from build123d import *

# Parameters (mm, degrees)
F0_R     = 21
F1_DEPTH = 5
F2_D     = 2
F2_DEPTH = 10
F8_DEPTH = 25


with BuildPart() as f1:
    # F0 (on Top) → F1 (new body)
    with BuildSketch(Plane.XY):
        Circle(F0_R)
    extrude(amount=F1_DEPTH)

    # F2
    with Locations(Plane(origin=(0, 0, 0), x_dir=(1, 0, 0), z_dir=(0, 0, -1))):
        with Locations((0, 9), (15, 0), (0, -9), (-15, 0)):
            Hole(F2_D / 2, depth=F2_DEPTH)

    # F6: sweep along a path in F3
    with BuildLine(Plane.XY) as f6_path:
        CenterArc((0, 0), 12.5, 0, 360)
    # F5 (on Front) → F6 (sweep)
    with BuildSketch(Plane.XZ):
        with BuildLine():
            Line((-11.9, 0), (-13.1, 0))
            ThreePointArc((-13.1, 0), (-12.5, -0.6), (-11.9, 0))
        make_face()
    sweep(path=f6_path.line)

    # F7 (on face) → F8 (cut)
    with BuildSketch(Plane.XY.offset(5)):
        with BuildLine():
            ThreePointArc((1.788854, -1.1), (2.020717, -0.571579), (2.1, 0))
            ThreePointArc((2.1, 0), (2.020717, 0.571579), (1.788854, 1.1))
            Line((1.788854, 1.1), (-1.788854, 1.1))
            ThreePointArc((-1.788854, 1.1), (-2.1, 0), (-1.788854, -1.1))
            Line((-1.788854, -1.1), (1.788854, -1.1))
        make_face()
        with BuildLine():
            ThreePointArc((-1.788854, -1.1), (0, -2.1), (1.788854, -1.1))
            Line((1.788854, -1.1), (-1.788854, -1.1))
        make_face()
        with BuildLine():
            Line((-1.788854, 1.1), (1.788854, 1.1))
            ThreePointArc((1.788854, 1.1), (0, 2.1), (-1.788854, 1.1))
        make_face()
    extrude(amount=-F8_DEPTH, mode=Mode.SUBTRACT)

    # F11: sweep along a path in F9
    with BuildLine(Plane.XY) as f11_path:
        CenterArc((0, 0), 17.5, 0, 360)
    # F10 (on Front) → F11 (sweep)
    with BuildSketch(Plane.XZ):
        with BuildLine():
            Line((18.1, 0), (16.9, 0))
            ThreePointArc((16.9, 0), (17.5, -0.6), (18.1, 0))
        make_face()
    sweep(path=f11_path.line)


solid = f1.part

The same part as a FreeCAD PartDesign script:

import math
import FreeCAD as App
import Part
import Sketcher

V = App.Vector
Q = App.Units.Quantity

doc = App.newDocument("Part")
body = doc.addObject("PartDesign::Body", "Body")

# Sketch on XY plane
sketch1 = body.newObject("Sketcher::SketchObject", "Sketch")
sketch1.AttachmentSupport = (doc.getObject("XY_Plane"), [""])
sketch1.MapMode = "FlatFace"
sketch1.addGeometry(Part.Circle(V(0, 0, 0), V(0, 0, 1), 21), False)
sketch1.addConstraint([
    Sketcher.Constraint("Coincident", 0, 3, -1, 1),
    Sketcher.Constraint("Diameter", 0, Q("42 mm")),
])
pad1 = body.newObject("PartDesign::Pad", "Pad")
pad1.Profile = sketch1
pad1.Length = 5

# Sketch on XY plane
sketch2 = body.newObject("Sketcher::SketchObject", "Sketch001")
sketch2.AttachmentSupport = (doc.getObject("XY_Plane"), [""])
sketch2.MapMode = "FlatFace"
sketch2.addGeometry([
    Part.Circle(V(0, -9, 0), V(0, 0, 1), 1),
    Part.Circle(V(15, 0, 0), V(0, 0, 1), 1),
    Part.Circle(V(0, 9, 0), V(0, 0, 1), 1),
    Part.Circle(V(-15, 0, 0), V(0, 0, 1), 1),
], False)
sketch2.addConstraint([
    Sketcher.Constraint("Equal", 0, 1),
    Sketcher.Constraint("Equal", 1, 2),
    Sketcher.Constraint("Equal", 2, 3),
    Sketcher.Constraint("Symmetric", 0, 3, 2, 3, -1, 1),
    Sketcher.Constraint("Symmetric", 1, 3, 3, 3, -1, 1),
    Sketcher.Constraint("PointOnObject", 0, 3, -2),
    Sketcher.Constraint("PointOnObject", 1, 3, -1),
    Sketcher.Constraint("Diameter", 0, Q("2 mm")),
    Sketcher.Constraint("DistanceY", 0, 3, -1, 1, Q("9 mm")),
    Sketcher.Constraint("DistanceX", -1, 1, 1, 3, Q("15 mm")),
])
doc.recompute()
hole = body.newObject("PartDesign::Hole", "Hole")
hole.Profile = sketch2
hole.ThreadType = "None"
hole.Diameter = 2
hole.DepthType = "Dimension"
hole.Depth = 10
hole.DrillPoint = "Flat"
hole.Reversed = True

# Sketch on XZ plane
sketch3 = body.newObject("Sketcher::SketchObject", "Sketch002")
sketch3.AttachmentSupport = (doc.getObject("XZ_Plane"), [""])
sketch3.MapMode = "FlatFace"
sketch3.addGeometry([
    Part.LineSegment(V(-11.9, 0, 0), V(-13.1, 0, 0)),
    Part.ArcOfCircle(Part.Circle(V(-12.5, 0, 0), V(0, 0, 1), 0.6), math.radians(180), math.radians(360)),
], False)
sketch3.addConstraint([
    Sketcher.Constraint("Coincident", 0, 1, 1, 2),
    Sketcher.Constraint("Coincident", 1, 1, 0, 2),
    Sketcher.Constraint("Horizontal", 0),
    Sketcher.Constraint("PointOnObject", 1, 3, -1),
    Sketcher.Constraint("PointOnObject", 0, 1, -1),
    Sketcher.Constraint("Radius", 1, Q("0.6 mm")),
    Sketcher.Constraint("DistanceX", 1, 3, -1, 1, Q("12.5 mm")),
])

# Sketch on XY plane
sketch4 = body.newObject("Sketcher::SketchObject", "Sketch003")
sketch4.AttachmentSupport = (doc.getObject("XY_Plane"), [""])
sketch4.MapMode = "FlatFace"
sketch4.addGeometry(Part.Circle(V(0, 0, 0), V(0, 0, 1), 12), False)
sketch4.addConstraint([
    Sketcher.Constraint("Coincident", 0, 3, -1, 1),
    Sketcher.Constraint("Diameter", 0, Q("25 mm")),
])
doc.recompute()

additivepipe = body.newObject("PartDesign::AdditivePipe", "AdditivePipe")
additivepipe.Profile = sketch3
additivepipe.Spine = (sketch4, ["Edge1"])

# Sketch on XY plane
sketch5 = body.newObject("Sketcher::SketchObject", "Sketch004")
sketch5.AttachmentSupport = (doc.getObject("XY_Plane"), [""])
sketch5.MapMode = "FlatFace"
sketch5.AttachmentOffset = App.Placement(V(0, 0, 5), App.Rotation())
sketch5.addGeometry([
    Part.ArcOfCircle(Part.Circle(V(0, 0, 0), V(0, 0, 1), 2.1), math.radians(-32), math.radians(0)),  # 0
    Part.ArcOfCircle(Part.Circle(V(0, 0, 0), V(0, 0, 1), 2.1), math.radians(0), math.radians(32)),  # 1
    Part.ArcOfCircle(Part.Circle(V(0, 0, 0), V(0, 0, 1), 2.1), math.radians(32), math.radians(148)),  # 2
    Part.ArcOfCircle(Part.Circle(V(0, 0, 0), V(0, 0, 1), 2.1), math.radians(148), math.radians(212)),  # 3
    Part.ArcOfCircle(Part.Circle(V(0, 0, 0), V(0, 0, 1), 2.1), math.radians(-148), math.radians(-32)),  # 4
], False)
sketch5.addConstraint([
    Sketcher.Constraint("Tangent", 0, 2, 1, 1),
    Sketcher.Constraint("Tangent", 1, 2, 2, 1),
    Sketcher.Constraint("Tangent", 2, 2, 3, 1),
    Sketcher.Constraint("Tangent", 3, 2, 4, 1),
    Sketcher.Constraint("Tangent", 4, 2, 0, 1),
    Sketcher.Constraint("Coincident", 0, 3, -1, 1),
    Sketcher.Constraint("Coincident", 2, 3, -1, 1),
    Sketcher.Constraint("PointOnObject", 0, 2, -1),
    Sketcher.Constraint("Horizontal", 1, 2, 2, 2),
    Sketcher.Constraint("Horizontal", 3, 2, 4, 2),
    Sketcher.Constraint("Vertical", 2, 2, 3, 2),
    Sketcher.Constraint("Radius", 2, Q("2.099999 mm")),
    Sketcher.Constraint("DistanceY", -1, 1, 1, 2, Q("1.1 mm")),
])
pocket1 = body.newObject("PartDesign::Pocket", "Pocket")
pocket1.Profile = sketch5
pocket1.Length = 25

# Sketch on XZ plane
sketch6 = body.newObject("Sketcher::SketchObject", "Sketch005")
sketch6.AttachmentSupport = (doc.getObject("XZ_Plane"), [""])
sketch6.MapMode = "FlatFace"
sketch6.addGeometry([
    Part.LineSegment(V(18.1, 0, 0), V(16.9, 0, 0)),
    Part.ArcOfCircle(Part.Circle(V(17.5, 0, 0), V(0, 0, 1), 0.6), math.radians(180), math.radians(360)),
], False)
sketch6.addConstraint([
    Sketcher.Constraint("Coincident", 0, 1, 1, 2),
    Sketcher.Constraint("Coincident", 1, 1, 0, 2),
    Sketcher.Constraint("Horizontal", 0),
    Sketcher.Constraint("PointOnObject", 1, 3, -1),
    Sketcher.Constraint("PointOnObject", 0, 1, -1),
    Sketcher.Constraint("Radius", 1, Q("0.6 mm")),
    Sketcher.Constraint("DistanceX", -1, 1, 1, 3, Q("17.5 mm")),
])

# Sketch on XY plane
sketch7 = body.newObject("Sketcher::SketchObject", "Sketch006")
sketch7.AttachmentSupport = (doc.getObject("XY_Plane"), [""])
sketch7.MapMode = "FlatFace"
sketch7.addGeometry(Part.Circle(V(0, 0, 0), V(0, 0, 1), 18), False)
sketch7.addConstraint([
    Sketcher.Constraint("Coincident", 0, 3, -1, 1),
    Sketcher.Constraint("Diameter", 0, Q("35 mm")),
])
doc.recompute()

additivepipe2 = body.newObject("PartDesign::AdditivePipe", "AdditivePipe001")
additivepipe2.Profile = sketch6
additivepipe2.Spine = (sketch7, ["Edge1"])

doc.recompute()
